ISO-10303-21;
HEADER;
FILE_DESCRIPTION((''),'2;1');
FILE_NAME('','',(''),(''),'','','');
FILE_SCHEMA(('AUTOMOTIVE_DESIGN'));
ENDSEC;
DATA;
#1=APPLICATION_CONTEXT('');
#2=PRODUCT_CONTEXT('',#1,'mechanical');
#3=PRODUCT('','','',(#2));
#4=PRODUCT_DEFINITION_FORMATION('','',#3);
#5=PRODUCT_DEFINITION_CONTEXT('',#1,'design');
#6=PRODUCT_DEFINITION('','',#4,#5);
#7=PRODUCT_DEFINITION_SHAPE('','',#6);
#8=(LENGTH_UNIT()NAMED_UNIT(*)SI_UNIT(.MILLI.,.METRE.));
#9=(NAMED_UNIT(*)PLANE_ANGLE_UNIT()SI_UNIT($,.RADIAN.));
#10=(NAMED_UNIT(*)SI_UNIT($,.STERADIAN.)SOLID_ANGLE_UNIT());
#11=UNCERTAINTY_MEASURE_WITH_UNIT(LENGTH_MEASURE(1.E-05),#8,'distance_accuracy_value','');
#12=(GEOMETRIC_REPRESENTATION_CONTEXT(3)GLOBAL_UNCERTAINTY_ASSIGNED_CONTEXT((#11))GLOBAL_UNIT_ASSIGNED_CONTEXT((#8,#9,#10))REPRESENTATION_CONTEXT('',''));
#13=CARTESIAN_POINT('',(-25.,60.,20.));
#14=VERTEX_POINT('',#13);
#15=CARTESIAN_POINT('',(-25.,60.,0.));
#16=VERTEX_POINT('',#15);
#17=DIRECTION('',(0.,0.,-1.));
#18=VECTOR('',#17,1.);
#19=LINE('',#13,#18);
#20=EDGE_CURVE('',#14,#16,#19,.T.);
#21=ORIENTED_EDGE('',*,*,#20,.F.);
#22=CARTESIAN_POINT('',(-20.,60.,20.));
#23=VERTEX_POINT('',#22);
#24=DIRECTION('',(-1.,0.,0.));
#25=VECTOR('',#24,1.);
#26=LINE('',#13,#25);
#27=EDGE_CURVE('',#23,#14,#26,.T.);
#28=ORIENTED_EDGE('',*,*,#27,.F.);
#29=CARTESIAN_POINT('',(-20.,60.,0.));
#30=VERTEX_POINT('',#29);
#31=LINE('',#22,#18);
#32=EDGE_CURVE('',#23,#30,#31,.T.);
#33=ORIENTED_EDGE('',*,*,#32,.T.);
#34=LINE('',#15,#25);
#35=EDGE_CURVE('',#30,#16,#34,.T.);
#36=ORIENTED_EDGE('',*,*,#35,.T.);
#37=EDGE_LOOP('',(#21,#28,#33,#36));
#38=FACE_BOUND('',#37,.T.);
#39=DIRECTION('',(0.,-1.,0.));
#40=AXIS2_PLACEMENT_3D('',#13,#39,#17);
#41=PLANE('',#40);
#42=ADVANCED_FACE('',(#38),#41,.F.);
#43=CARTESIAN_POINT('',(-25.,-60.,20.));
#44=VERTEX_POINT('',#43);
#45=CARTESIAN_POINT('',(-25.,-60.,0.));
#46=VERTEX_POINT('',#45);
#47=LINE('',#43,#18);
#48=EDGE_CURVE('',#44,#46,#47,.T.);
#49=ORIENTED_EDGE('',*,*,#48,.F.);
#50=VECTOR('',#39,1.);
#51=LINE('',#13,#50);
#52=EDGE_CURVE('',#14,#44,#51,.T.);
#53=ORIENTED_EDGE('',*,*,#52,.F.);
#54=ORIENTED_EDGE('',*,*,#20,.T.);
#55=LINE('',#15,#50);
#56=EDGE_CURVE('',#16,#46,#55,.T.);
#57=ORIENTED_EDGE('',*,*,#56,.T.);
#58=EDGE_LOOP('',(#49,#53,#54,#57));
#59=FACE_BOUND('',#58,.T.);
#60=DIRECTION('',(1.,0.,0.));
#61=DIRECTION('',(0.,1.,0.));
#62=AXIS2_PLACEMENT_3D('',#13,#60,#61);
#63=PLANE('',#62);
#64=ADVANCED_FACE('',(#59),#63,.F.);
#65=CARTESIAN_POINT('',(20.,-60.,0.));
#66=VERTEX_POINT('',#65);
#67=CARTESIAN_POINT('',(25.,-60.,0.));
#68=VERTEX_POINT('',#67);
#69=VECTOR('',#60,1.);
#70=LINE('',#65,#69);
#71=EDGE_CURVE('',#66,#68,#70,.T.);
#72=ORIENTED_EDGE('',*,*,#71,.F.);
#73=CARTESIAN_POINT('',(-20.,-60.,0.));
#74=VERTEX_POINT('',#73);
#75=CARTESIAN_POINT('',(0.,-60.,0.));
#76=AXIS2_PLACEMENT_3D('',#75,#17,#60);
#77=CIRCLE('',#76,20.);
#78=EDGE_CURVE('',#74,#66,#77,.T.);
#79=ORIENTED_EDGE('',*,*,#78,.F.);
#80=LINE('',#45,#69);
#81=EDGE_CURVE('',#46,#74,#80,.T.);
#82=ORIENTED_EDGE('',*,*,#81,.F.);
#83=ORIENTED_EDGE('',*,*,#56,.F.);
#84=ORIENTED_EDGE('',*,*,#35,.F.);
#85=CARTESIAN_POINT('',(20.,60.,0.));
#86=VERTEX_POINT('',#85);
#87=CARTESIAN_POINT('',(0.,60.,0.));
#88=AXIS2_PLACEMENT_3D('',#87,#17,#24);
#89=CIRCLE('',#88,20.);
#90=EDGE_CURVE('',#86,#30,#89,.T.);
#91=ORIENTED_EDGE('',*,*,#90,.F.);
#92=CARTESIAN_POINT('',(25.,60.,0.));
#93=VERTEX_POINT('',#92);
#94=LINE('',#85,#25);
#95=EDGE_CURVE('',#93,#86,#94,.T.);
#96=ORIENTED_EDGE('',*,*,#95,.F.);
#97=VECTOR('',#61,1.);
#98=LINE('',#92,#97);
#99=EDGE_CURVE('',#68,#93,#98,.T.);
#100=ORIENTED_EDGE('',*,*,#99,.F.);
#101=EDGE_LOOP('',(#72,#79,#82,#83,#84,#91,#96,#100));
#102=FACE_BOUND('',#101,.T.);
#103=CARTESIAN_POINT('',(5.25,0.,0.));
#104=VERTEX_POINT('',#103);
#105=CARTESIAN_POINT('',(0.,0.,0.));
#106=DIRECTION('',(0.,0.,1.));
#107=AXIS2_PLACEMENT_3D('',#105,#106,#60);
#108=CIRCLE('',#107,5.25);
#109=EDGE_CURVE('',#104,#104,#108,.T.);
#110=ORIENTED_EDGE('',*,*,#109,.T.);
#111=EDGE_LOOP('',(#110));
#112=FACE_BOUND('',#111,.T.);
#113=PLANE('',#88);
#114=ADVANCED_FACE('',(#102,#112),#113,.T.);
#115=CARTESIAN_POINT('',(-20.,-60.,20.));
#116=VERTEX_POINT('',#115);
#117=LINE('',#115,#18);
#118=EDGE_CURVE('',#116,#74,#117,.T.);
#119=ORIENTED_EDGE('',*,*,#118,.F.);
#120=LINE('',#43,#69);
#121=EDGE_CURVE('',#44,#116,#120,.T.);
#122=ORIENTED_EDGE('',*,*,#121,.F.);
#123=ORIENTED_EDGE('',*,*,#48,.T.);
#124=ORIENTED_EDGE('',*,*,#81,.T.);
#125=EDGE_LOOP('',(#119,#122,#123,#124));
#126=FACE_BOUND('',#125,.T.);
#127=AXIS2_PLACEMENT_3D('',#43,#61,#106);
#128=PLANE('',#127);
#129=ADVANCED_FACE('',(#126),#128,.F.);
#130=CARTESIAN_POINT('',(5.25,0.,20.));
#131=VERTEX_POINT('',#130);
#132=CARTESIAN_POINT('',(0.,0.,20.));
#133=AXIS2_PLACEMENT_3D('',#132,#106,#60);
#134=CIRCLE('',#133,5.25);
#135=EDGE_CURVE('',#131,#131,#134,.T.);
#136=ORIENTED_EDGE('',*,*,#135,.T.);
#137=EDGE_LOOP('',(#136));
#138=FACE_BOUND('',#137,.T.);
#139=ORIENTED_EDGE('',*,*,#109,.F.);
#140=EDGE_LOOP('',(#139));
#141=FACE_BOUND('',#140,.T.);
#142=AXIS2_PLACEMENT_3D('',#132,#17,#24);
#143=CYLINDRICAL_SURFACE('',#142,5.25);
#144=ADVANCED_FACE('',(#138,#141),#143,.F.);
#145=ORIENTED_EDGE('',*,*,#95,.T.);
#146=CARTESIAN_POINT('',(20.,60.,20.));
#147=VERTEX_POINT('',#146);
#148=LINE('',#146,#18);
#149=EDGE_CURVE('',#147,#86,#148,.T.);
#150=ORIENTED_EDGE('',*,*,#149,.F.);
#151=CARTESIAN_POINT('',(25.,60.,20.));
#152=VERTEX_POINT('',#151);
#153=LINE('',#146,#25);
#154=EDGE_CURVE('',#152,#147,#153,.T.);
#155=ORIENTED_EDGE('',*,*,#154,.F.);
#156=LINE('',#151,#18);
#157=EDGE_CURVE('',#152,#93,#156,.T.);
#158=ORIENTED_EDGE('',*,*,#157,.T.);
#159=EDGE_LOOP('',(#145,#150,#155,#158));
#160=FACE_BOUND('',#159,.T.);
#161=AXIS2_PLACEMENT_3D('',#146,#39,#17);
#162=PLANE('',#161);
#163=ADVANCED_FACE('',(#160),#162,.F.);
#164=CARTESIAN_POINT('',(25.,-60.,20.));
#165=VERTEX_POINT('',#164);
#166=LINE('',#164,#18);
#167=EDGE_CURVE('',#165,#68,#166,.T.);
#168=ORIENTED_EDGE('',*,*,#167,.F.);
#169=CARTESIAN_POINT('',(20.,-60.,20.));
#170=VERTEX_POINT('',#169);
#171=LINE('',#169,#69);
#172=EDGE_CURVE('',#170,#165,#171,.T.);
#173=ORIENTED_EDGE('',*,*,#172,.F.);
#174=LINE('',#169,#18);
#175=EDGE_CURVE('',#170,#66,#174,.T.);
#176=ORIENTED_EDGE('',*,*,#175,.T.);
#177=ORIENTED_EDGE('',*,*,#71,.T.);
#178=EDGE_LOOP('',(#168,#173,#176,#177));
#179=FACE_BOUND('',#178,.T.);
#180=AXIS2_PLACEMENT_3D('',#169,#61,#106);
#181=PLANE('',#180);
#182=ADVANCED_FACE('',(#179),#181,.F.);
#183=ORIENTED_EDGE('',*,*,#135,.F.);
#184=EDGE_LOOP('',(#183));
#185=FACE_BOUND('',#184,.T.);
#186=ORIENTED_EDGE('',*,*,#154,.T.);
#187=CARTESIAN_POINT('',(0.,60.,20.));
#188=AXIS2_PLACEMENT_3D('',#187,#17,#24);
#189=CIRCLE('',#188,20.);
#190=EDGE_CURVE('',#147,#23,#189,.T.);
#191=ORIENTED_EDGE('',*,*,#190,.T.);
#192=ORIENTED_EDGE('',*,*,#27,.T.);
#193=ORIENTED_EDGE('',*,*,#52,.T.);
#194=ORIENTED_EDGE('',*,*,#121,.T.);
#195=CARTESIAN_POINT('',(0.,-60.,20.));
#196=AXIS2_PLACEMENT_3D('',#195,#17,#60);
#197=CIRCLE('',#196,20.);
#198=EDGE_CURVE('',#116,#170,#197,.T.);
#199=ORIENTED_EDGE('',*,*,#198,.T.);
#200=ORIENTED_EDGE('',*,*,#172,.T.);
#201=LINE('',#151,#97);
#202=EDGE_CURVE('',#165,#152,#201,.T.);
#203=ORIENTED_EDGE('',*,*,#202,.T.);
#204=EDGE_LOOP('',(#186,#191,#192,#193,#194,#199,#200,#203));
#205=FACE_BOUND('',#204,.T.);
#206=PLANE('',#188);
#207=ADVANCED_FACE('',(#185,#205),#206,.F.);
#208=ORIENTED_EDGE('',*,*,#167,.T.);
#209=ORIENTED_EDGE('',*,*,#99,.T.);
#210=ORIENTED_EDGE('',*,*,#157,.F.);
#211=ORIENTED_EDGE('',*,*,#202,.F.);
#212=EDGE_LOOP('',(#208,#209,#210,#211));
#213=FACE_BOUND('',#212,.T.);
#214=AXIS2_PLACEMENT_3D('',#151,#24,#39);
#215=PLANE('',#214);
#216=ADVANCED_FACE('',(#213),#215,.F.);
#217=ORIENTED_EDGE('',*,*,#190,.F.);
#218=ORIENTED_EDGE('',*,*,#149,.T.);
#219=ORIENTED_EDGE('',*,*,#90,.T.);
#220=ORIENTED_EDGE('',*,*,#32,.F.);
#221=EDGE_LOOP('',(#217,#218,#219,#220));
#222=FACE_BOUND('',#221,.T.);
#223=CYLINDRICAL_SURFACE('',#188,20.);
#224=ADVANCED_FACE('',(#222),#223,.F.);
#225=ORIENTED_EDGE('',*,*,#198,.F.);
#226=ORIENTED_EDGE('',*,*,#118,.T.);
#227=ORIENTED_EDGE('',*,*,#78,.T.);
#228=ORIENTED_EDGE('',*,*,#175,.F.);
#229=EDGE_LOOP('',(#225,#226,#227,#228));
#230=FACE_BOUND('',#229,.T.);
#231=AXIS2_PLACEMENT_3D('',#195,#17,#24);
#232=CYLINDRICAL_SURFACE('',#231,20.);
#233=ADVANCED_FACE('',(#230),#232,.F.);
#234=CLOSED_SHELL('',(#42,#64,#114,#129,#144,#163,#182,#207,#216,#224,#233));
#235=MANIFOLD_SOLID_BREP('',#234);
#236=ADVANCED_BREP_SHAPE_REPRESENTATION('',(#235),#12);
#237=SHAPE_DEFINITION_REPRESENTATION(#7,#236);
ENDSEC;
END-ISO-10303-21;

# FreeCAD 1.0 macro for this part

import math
import FreeCAD as App
import Part
import Sketcher
Q = App.Units.Quantity

doc = App.newDocument("Part")
params = doc.addObject("Spreadsheet::Sheet", "Params")
for row, (alias, value) in enumerate([
    ("sketch1_radius", "20 mm"),
    ("sketch1_diameter", "10.5 mm"),
    ("sketch1_width", "5 mm"),
    ("sketch1_height", "120 mm"),
    ("pad1_length", "20 mm"),
], start=1):
    params.set(f"A{row}", alias)
    params.set(f"B{row}", "=" + value)
    params.setAlias(f"B{row}", alias)

body = doc.addObject("PartDesign::Body", "Body")

sketch1 = body.newObject("Sketcher::SketchObject", "Sketch")
sketch1.AttachmentSupport = (doc.getObject("XY_Plane"), [""])
sketch1.MapMode = "FlatFace"
sketch1.addGeometry([
    Part.LineSegment(App.Vector(25, 60, 0), App.Vector(20, 60, 0)),
    Part.ArcOfCircle(Part.Circle(App.Vector(0, 60, 0), App.Vector(0, 0, 1), 20), math.radians(180), math.radians(360)),
    Part.LineSegment(App.Vector(-20, 60, 0), App.Vector(-25, 60, 0)),
    Part.LineSegment(App.Vector(-25, 60, 0), App.Vector(-25, -60, 0)),
    Part.LineSegment(App.Vector(-25, -60, 0), App.Vector(-20, -60, 0)),
    Part.ArcOfCircle(Part.Circle(App.Vector(0, -60, 0), App.Vector(0, 0, 1), 20), math.radians(0), math.radians(180)),
    Part.LineSegment(App.Vector(20, -60, 0), App.Vector(25, -60, 0)),
    Part.LineSegment(App.Vector(25, -60, 0), App.Vector(25, 60, 0)),
    Part.Circle(App.Vector(0, 0, 0), App.Vector(0, 0, 1), 5),
], False)
sketch1.addConstraint([
    Sketcher.Constraint("Coincident", 0, 2, 1, 2),
    Sketcher.Constraint("Coincident", 1, 1, 2, 1),
    Sketcher.Constraint("Coincident", 2, 2, 3, 1),
    Sketcher.Constraint("Coincident", 3, 2, 4, 1),
    Sketcher.Constraint("Coincident", 4, 2, 5, 2),
    Sketcher.Constraint("Coincident", 5, 1, 6, 1),
    Sketcher.Constraint("Coincident", 6, 2, 7, 1),
    Sketcher.Constraint("Coincident", 7, 2, 0, 1),
    Sketcher.Constraint("Horizontal", 0),
    Sketcher.Constraint("Horizontal", 2),
    Sketcher.Constraint("Vertical", 3),
    Sketcher.Constraint("Horizontal", 4),
    Sketcher.Constraint("Horizontal", 6),
    Sketcher.Constraint("Vertical", 7),
    Sketcher.Constraint("Coincident", 8, 3, -1, 1),
    Sketcher.Constraint("Equal", 1, 5),
    Sketcher.Constraint("Symmetric", 1, 3, 5, 3, -1, 1),
    Sketcher.Constraint("Symmetric", 2, 2, 6, 2, -1, 1),
    Sketcher.Constraint("Symmetric", 0, 2, 1, 1, -2),
    Sketcher.Constraint("Horizontal", 1, 3, 0, 2),
    Sketcher.Constraint("Horizontal", 5, 3, 3, 2),
    Sketcher.Constraint("Radius", 1, Q("20 mm")),
    Sketcher.Constraint("Diameter", 8, Q("10.5 mm")),
    Sketcher.Constraint("DistanceX", 0, 2, 0, 1, Q("5 mm")),
    Sketcher.Constraint("DistanceY", 3, 2, 3, 1, Q("120 mm")),
])
sketch1.setExpression("Constraints[21]", "Params.sketch1_radius")
sketch1.setExpression("Constraints[22]", "Params.sketch1_diameter")
sketch1.setExpression("Constraints[23]", "Params.sketch1_width")
sketch1.setExpression("Constraints[24]", "Params.sketch1_height")
pad1 = body.newObject("PartDesign::Pad", "Pad")
pad1.Profile = sketch1
pad1.setExpression("Length", "Params.pad1_length")

doc.recompute()
